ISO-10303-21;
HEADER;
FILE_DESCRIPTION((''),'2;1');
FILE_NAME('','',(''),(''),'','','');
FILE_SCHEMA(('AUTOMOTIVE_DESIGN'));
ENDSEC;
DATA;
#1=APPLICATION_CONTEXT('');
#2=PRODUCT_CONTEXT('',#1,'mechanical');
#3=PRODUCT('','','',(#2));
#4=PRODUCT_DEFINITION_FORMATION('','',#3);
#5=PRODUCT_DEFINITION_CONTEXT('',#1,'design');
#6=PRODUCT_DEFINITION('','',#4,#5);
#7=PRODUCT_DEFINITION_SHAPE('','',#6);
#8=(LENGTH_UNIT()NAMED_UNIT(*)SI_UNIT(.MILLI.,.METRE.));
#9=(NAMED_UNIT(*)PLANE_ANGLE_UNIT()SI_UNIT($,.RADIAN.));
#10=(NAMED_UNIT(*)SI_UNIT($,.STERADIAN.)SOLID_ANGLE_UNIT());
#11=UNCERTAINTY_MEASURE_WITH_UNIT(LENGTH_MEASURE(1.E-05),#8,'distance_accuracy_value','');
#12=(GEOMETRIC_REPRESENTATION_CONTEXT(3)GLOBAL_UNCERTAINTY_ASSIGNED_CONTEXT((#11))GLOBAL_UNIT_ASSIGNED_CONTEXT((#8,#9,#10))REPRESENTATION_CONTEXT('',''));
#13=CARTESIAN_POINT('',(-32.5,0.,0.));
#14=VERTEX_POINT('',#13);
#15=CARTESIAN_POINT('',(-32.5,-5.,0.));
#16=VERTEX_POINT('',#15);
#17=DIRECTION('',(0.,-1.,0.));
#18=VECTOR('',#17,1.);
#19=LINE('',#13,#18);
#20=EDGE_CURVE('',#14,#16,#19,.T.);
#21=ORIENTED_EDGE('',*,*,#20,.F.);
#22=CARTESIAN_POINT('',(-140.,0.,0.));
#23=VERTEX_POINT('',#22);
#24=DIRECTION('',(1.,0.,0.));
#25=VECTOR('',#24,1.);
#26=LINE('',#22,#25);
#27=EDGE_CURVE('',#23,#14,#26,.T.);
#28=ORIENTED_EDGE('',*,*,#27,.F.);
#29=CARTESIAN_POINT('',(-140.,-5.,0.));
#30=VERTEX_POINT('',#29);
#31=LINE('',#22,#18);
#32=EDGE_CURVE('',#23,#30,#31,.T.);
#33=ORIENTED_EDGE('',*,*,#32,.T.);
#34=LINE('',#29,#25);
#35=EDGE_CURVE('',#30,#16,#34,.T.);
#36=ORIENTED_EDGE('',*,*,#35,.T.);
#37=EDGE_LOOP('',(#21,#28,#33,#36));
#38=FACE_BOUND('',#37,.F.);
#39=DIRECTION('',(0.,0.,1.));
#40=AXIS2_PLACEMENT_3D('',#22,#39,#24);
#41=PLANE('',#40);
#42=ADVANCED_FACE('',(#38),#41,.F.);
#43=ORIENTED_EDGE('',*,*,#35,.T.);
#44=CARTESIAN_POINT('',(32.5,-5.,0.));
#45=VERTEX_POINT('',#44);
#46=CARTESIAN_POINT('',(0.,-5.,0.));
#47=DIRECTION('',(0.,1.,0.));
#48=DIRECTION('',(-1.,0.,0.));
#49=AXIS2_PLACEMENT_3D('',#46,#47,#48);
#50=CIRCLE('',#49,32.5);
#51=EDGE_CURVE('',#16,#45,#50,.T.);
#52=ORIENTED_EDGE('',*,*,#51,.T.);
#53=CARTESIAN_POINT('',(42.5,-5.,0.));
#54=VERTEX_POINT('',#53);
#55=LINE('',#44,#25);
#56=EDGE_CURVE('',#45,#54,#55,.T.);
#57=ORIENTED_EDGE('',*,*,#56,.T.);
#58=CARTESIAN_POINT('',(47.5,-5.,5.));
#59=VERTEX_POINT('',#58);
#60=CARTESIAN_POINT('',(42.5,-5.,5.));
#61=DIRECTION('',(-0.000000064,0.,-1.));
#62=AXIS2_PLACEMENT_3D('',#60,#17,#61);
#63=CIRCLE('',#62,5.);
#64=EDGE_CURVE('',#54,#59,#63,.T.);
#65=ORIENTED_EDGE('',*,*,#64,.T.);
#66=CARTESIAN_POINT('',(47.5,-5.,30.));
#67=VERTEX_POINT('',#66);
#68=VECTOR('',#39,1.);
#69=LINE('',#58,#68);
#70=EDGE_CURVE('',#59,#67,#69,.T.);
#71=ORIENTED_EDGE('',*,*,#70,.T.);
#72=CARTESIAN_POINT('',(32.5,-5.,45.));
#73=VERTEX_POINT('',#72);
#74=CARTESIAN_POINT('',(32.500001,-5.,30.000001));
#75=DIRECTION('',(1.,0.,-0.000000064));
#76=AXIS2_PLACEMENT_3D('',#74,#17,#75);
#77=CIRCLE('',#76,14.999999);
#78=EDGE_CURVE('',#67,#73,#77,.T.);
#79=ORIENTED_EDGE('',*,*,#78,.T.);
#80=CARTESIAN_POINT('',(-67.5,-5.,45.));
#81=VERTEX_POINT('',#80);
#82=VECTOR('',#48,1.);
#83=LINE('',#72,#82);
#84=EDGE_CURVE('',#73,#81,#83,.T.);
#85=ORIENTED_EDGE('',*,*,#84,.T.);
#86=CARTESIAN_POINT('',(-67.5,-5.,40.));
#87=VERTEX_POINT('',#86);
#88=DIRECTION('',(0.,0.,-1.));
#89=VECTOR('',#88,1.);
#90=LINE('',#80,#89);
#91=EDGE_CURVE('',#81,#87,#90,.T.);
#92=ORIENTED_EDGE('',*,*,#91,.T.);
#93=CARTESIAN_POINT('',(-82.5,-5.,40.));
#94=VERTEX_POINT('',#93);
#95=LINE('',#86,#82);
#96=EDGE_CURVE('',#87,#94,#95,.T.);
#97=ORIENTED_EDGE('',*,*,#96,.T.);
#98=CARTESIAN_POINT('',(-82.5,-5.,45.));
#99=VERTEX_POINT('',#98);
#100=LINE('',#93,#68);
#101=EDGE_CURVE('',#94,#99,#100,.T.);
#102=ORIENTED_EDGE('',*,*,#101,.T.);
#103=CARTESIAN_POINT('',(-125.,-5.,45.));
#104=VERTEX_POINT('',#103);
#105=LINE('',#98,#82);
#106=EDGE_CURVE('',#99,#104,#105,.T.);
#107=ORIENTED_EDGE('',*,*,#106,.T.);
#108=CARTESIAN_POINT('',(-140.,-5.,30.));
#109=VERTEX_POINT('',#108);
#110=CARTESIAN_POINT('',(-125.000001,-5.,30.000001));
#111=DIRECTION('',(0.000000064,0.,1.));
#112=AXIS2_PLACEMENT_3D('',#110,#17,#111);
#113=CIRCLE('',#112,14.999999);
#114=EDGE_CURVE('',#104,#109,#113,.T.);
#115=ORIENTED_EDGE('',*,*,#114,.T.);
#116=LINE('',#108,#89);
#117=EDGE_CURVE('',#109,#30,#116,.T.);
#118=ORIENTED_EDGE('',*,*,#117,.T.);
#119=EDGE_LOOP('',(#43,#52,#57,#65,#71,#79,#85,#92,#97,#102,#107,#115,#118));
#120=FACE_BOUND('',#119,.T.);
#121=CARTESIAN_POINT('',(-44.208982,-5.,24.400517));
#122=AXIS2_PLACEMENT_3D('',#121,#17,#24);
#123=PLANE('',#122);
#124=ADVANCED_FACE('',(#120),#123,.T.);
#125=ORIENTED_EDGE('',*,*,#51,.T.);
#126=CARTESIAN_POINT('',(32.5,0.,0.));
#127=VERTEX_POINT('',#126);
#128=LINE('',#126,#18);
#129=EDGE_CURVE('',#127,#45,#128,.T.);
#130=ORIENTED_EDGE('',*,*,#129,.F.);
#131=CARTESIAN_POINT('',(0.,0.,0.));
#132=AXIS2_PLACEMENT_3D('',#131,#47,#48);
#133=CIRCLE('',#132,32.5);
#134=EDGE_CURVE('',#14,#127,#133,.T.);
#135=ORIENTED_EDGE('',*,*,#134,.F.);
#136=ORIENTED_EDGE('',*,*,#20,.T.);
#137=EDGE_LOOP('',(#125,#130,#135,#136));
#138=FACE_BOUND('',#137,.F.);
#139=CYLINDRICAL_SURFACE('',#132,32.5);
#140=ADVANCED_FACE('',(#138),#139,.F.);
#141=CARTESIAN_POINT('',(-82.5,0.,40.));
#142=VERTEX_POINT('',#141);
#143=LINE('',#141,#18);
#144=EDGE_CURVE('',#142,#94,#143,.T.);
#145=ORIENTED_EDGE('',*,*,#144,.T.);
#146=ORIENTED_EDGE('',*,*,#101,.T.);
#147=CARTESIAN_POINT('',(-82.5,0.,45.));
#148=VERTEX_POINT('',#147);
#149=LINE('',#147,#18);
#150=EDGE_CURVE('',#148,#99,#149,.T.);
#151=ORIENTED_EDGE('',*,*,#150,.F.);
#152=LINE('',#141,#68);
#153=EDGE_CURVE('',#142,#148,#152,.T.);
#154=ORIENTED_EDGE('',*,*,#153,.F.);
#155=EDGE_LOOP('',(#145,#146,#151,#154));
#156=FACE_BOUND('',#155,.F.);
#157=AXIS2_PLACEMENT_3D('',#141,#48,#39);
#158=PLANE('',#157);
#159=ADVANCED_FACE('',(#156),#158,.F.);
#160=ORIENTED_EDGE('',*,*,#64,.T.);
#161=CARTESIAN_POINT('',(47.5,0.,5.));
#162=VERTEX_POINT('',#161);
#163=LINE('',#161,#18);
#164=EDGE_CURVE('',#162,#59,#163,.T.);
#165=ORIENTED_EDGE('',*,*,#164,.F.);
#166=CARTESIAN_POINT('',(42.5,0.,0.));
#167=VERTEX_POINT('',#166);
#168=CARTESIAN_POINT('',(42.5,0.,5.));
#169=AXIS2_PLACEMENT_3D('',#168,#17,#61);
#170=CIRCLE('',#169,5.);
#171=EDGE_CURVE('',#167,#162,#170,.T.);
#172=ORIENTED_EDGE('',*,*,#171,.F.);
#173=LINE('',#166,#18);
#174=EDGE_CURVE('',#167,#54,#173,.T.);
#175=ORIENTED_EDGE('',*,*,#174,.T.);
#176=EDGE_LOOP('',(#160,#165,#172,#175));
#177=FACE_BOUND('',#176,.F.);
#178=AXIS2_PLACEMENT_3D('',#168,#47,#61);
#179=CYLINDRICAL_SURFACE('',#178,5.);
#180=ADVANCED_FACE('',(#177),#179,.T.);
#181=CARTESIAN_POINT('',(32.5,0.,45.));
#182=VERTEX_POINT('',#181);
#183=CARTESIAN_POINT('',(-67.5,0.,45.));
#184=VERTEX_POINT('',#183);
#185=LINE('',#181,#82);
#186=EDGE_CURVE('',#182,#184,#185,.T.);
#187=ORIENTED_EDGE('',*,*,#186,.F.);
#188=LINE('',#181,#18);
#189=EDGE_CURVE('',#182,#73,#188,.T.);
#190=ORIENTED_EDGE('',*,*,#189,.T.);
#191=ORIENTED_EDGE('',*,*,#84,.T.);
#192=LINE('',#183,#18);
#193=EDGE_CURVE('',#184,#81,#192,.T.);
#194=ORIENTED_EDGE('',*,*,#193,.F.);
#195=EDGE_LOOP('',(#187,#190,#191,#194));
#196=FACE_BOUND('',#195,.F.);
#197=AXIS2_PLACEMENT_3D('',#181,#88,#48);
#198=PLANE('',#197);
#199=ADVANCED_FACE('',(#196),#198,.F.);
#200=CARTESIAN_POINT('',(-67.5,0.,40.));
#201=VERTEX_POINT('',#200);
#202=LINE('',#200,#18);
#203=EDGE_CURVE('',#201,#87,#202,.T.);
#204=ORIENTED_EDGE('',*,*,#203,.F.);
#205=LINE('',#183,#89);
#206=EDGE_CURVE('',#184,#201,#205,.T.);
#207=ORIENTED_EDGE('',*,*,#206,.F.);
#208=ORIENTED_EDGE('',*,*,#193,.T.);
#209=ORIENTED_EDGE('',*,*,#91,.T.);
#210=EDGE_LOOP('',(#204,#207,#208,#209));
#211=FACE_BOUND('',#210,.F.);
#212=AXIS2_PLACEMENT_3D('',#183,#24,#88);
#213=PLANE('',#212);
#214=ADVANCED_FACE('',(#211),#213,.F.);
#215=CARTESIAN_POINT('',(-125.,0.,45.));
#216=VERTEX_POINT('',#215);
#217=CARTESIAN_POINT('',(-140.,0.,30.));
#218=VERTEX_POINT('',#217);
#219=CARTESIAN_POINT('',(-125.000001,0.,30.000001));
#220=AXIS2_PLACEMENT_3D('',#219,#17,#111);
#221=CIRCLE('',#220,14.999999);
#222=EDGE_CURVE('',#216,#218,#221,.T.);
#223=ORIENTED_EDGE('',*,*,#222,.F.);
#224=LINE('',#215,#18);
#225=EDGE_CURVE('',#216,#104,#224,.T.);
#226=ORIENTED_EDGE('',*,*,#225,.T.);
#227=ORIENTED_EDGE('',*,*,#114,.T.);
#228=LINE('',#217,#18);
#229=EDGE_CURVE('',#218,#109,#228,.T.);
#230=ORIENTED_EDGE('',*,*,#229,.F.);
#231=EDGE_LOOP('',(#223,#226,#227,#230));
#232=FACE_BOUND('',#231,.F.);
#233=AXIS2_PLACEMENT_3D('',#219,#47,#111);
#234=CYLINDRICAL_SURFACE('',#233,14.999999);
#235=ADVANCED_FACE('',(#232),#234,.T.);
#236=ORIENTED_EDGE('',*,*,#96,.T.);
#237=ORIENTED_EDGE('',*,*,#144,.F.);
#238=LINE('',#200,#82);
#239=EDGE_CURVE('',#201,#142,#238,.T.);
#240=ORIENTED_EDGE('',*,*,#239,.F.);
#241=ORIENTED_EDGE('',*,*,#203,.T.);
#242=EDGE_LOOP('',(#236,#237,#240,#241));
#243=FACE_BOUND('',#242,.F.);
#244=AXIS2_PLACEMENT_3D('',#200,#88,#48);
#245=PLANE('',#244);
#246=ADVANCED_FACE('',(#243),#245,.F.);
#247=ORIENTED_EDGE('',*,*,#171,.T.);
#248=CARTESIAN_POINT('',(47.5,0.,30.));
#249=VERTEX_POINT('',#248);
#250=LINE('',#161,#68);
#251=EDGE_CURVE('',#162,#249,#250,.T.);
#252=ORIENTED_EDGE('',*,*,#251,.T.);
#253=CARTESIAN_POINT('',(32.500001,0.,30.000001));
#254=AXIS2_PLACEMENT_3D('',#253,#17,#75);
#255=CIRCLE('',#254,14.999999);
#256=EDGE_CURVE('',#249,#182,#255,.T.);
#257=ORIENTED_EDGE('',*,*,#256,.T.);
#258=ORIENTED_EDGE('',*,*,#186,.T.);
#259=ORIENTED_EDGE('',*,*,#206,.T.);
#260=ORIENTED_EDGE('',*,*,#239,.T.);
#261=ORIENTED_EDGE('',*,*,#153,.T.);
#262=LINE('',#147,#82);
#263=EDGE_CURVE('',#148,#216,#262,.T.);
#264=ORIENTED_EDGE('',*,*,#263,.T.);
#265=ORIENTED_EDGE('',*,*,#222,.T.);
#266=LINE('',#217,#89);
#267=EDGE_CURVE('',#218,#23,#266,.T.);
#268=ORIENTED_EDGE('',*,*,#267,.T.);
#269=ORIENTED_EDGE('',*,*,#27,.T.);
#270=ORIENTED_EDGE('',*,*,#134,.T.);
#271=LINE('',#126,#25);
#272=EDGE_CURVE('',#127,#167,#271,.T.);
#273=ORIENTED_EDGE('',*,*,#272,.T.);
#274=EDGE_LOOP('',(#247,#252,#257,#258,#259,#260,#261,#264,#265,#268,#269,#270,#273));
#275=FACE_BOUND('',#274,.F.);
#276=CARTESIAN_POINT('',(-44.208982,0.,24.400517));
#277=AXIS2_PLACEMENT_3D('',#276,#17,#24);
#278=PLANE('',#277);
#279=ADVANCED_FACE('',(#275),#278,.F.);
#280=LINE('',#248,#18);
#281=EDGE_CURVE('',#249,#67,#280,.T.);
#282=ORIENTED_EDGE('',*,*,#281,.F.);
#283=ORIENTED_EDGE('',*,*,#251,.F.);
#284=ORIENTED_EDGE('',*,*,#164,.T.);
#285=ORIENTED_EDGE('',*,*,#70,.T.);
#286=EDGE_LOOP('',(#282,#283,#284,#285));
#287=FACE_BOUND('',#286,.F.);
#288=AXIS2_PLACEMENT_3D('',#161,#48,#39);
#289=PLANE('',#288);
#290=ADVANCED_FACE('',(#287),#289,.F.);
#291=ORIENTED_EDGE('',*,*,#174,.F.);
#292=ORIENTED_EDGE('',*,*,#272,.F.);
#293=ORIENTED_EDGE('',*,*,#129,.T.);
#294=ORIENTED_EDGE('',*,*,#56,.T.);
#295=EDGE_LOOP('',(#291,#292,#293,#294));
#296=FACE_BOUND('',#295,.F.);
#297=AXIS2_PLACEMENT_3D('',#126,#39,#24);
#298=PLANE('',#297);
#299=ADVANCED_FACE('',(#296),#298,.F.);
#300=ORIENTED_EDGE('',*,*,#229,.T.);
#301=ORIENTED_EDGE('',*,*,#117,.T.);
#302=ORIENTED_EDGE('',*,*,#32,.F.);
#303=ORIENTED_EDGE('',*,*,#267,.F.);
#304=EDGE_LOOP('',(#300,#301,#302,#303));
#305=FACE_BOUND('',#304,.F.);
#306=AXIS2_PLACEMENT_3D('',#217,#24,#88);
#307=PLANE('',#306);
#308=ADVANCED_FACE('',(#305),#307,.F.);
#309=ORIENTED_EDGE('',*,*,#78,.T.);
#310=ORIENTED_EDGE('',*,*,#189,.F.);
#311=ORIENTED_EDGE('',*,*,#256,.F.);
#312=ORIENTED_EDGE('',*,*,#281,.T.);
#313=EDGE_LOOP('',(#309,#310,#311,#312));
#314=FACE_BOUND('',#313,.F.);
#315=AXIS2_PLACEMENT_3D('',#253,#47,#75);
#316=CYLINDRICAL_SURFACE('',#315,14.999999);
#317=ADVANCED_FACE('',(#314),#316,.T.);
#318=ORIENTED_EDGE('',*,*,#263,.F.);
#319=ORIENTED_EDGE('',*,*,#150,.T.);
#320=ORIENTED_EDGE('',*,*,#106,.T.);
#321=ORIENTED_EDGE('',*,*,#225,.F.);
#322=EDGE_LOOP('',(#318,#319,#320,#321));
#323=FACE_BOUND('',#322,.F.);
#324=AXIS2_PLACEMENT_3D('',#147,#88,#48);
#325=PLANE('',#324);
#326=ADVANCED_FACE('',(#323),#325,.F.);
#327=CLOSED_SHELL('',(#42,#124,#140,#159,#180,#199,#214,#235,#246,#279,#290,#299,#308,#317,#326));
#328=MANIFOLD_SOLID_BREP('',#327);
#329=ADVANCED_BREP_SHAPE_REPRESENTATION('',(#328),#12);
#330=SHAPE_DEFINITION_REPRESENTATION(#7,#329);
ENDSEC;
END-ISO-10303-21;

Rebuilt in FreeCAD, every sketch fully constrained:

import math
import FreeCAD as App
import Part
import Sketcher

doc = App.newDocument("Part")
body = doc.addObject("PartDesign::Body", "Body")

sketch1 = body.newObject("Sketcher::SketchObject", "Sketch")
sketch1.AttachmentSupport = (doc.getObject("XZ_Plane"), [""])
sketch1.MapMode = "FlatFace"
sketch1.addGeometry([
    Part.ArcOfCircle(Part.Circle(App.Vector(0, 0, 0), App.Vector(0, 0, 1), 32.5), math.radians(0), math.radians(180)),
    Part.LineSegment(App.Vector(32.5, 0, 0), App.Vector(42.5, 0, 0)),
    Part.ArcOfCircle(Part.Circle(App.Vector(42.5, 5, 0), App.Vector(0, 0, 1), 5), math.radians(-90.000004), math.radians(0.000004)),
    Part.LineSegment(App.Vector(47.5, 5, 0), App.Vector(47.5, 30, 0)),
    Part.ArcOfCircle(Part.Circle(App.Vector(32.500001, 30.000001, 0), App.Vector(0, 0, 1), 14.999999), math.radians(-0.000004), math.radians(90.000004)),
    Part.LineSegment(App.Vector(32.5, 45, 0), App.Vector(-67.5, 45, 0)),
    Part.LineSegment(App.Vector(-67.5, 45, 0), App.Vector(-67.5, 40, 0)),
    Part.LineSegment(App.Vector(-67.5, 40, 0), App.Vector(-82.5, 40, 0)),
    Part.LineSegment(App.Vector(-82.5, 40, 0), App.Vector(-82.5, 45, 0)),
    Part.LineSegment(App.Vector(-82.5, 45, 0), App.Vector(-125, 45, 0)),
    Part.ArcOfCircle(Part.Circle(App.Vector(-125.000001, 30.000001, 0), App.Vector(0, 0, 1), 14.999999), math.radians(89.999996), math.radians(180.000004)),
    Part.LineSegment(App.Vector(-140, 30, 0), App.Vector(-140, 0, 0)),
    Part.LineSegment(App.Vector(-140, 0, 0), App.Vector(-32.5, 0, 0)),
], False)
sketch1.addConstraint([
    Sketcher.Constraint("Coincident", 0, 1, 1, 1),
    Sketcher.Constraint("Tangent", 1, 2, 2, 1),
    Sketcher.Constraint("Tangent", 2, 2, 3, 1),
    Sketcher.Constraint("Tangent", 3, 2, 4, 1),
    Sketcher.Constraint("Tangent", 4, 2, 5, 1),
    Sketcher.Constraint("Coincident", 5, 2, 6, 1),
    Sketcher.Constraint("Coincident", 6, 2, 7, 1),
    Sketcher.Constraint("Coincident", 7, 2, 8, 1),
    Sketcher.Constraint("Coincident", 8, 2, 9, 1),
    Sketcher.Constraint("Tangent", 9, 2, 10, 1),
    Sketcher.Constraint("Tangent", 10, 2, 11, 1),
    Sketcher.Constraint("Coincident", 11, 2, 12, 1),
    Sketcher.Constraint("Coincident", 12, 2, 0, 2),
    Sketcher.Constraint("Horizontal", 1),
    Sketcher.Constraint("Vertical", 3),
    Sketcher.Constraint("Horizontal", 5),
    Sketcher.Constraint("Vertical", 6),
    Sketcher.Constraint("Horizontal", 7),
    Sketcher.Constraint("Vertical", 8),
    Sketcher.Constraint("Horizontal", 9),
    Sketcher.Constraint("Vertical", 11),
    Sketcher.Constraint("Horizontal", 12),
    Sketcher.Constraint("Coincident", 0, 3, -1, 1),
    Sketcher.Constraint("Equal", 4, 10),
    Sketcher.Constraint("PointOnObject", 0, 1, -1),
    Sketcher.Constraint("PointOnObject", 11, 2, -1),
    Sketcher.Constraint("Horizontal", 4, 3, 10, 3),
    Sketcher.Constraint("Vertical", 4, 3, 0, 1),
    Sketcher.Constraint("Radius", 2, 5.0),
    Sketcher.Constraint("Radius", 4, 14.999999),
    Sketcher.Constraint("Radius", 0, 32.5),
    Sketcher.Constraint("DistanceX", 5, 2, 5, 1, 100.0),
    Sketcher.Constraint("DistanceX", 7, 2, 7, 1, 15.0),
    Sketcher.Constraint("DistanceY", 3, 1, 3, 2, 25.0),
    Sketcher.Constraint("DistanceY", 6, 2, 6, 1, 5.0),
    Sketcher.Constraint("DistanceX", 9, 2, 9, 1, 42.5),
])
pad1 = body.newObject("PartDesign::Pad", "Pad")
pad1.Profile = sketch1
pad1.Length = 5

doc.recompute()
